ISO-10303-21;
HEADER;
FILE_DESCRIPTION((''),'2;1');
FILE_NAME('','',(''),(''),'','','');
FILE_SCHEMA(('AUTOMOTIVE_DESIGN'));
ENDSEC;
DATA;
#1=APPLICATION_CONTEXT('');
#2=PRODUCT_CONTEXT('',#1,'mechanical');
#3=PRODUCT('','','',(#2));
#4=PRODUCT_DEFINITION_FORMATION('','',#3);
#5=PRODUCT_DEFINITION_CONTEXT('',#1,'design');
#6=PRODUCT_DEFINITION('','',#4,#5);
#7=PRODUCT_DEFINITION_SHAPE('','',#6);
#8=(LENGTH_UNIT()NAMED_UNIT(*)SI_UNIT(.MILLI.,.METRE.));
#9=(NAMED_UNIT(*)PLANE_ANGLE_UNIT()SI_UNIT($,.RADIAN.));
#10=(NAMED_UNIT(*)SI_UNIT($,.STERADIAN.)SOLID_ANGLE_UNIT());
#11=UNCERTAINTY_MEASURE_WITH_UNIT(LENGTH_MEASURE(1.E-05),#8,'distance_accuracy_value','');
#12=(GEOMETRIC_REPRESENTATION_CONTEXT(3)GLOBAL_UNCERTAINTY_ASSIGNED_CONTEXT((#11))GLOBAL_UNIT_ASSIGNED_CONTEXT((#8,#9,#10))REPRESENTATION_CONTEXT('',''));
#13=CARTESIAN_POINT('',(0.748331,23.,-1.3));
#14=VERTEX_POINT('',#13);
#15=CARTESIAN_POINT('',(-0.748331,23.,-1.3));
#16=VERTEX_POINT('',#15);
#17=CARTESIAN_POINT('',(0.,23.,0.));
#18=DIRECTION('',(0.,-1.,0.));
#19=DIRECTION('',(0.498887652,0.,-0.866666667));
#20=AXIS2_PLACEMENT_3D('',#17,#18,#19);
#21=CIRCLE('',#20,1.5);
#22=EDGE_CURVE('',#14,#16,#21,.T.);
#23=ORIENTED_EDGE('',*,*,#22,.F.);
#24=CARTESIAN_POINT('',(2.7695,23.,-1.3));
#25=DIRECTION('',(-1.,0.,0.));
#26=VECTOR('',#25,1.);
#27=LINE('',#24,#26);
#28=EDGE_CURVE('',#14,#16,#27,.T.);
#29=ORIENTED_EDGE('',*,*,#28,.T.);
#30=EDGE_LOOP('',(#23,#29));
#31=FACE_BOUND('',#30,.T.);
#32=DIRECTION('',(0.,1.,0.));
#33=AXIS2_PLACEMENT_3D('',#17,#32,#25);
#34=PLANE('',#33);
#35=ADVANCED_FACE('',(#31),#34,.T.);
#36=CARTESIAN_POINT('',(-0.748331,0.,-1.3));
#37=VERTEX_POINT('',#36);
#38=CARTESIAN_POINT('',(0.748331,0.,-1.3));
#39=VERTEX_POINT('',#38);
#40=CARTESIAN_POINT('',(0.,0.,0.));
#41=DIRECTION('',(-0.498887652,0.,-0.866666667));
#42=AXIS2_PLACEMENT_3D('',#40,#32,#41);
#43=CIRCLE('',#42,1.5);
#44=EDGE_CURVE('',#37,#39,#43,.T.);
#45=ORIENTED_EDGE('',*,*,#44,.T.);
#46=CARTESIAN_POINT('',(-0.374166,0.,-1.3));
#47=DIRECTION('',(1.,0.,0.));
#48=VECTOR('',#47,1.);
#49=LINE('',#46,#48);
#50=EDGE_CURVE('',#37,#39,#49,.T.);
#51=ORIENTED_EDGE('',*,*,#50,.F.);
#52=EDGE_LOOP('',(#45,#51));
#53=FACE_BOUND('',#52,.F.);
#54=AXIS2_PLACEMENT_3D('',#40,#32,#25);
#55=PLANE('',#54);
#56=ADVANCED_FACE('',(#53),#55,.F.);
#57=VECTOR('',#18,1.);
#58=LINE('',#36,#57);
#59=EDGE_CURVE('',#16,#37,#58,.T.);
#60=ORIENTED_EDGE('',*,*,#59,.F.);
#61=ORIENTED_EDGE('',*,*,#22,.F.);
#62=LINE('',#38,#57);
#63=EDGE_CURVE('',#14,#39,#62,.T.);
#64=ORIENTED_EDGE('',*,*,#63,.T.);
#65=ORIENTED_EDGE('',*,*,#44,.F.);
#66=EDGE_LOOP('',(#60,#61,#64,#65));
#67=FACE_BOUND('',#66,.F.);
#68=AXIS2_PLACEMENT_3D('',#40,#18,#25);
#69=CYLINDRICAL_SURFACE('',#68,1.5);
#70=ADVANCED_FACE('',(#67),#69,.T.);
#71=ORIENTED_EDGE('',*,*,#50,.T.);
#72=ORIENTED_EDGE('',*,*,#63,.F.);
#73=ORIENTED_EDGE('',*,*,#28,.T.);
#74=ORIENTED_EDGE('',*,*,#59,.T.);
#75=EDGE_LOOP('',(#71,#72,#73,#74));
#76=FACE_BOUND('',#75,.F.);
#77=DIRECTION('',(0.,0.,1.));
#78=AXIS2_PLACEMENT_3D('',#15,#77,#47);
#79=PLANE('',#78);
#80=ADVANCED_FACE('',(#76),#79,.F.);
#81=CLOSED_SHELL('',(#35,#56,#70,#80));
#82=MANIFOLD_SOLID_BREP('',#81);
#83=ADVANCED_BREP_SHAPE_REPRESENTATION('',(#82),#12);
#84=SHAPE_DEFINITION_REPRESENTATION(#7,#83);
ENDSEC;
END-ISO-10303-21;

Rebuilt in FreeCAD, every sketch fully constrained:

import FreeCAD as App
import Part
import Sketcher

V = App.Vector

doc = App.newDocument("Part")
body = doc.addObject("PartDesign::Body", "Body")

sketch1 = body.newObject("Sketcher::SketchObject", "Sketch")
sketch1.AttachmentSupport = (doc.getObject("XZ_Plane"), [""])
sketch1.MapMode = "FlatFace"
sketch1.addGeometry(Part.Circle(V(0, 0, 0), V(0, 0, 1), 1.5), False)
sketch1.addConstraint([
    Sketcher.Constraint("Coincident", 0, 3, -1, 1),
    Sketcher.Constraint("Diameter", 0, 3.0),
])
pad1 = body.newObject("PartDesign::Pad", "Pad")
pad1.Profile = sketch1
pad1.Length = 23
pad1.Reversed = True

sketch2 = body.newObject("Sketcher::SketchObject", "Sketch001")
sketch2.AttachmentSupport = (doc.getObject("XZ_Plane"), [""])
sketch2.MapMode = "FlatFace"
sketch2.AttachmentOffset = App.Placement(V(0, 0, -23), App.Rotation())
sketch2.addGeometry([
    Part.LineSegment(V(2.7695, -1.3, 0), V(2.7695, -3.2268, 0)),
    Part.LineSegment(V(2.7695, -3.2268, 0), V(-1.5, -3.2268, 0)),
    Part.LineSegment(V(-1.5, -3.2268, 0), V(-1.5, -1.3, 0)),
    Part.LineSegment(V(-1.5, -1.3, 0), V(2.7695, -1.3, 0)),
], False)
sketch2.addConstraint([
    Sketcher.Constraint("Coincident", 0, 2, 1, 1),
    Sketcher.Constraint("Coincident", 1, 2, 2, 1),
    Sketcher.Constraint("Coincident", 2, 2, 3, 1),
    Sketcher.Constraint("Coincident", 3, 2, 0, 1),
    Sketcher.Constraint("Vertical", 0),
    Sketcher.Constraint("Horizontal", 1),
    Sketcher.Constraint("Vertical", 2),
    Sketcher.Constraint("Horizontal", 3),
    Sketcher.Constraint("DistanceY", 2, 2, -1, 1, 1.3),
    Sketcher.Constraint("DistanceX", 1, 2, -1, 1, 1.5),
    Sketcher.Constraint("DistanceX", 1, 2, 1, 1, 4.2695),
    Sketcher.Constraint("DistanceY", 0, 2, 0, 1, 1.9268),
])
pocket1 = body.newObject("PartDesign::Pocket", "Pocket")
pocket1.Profile = sketch2
pocket1.Type = "ThroughAll"
pocket1.Midplane = True

doc.recompute()
